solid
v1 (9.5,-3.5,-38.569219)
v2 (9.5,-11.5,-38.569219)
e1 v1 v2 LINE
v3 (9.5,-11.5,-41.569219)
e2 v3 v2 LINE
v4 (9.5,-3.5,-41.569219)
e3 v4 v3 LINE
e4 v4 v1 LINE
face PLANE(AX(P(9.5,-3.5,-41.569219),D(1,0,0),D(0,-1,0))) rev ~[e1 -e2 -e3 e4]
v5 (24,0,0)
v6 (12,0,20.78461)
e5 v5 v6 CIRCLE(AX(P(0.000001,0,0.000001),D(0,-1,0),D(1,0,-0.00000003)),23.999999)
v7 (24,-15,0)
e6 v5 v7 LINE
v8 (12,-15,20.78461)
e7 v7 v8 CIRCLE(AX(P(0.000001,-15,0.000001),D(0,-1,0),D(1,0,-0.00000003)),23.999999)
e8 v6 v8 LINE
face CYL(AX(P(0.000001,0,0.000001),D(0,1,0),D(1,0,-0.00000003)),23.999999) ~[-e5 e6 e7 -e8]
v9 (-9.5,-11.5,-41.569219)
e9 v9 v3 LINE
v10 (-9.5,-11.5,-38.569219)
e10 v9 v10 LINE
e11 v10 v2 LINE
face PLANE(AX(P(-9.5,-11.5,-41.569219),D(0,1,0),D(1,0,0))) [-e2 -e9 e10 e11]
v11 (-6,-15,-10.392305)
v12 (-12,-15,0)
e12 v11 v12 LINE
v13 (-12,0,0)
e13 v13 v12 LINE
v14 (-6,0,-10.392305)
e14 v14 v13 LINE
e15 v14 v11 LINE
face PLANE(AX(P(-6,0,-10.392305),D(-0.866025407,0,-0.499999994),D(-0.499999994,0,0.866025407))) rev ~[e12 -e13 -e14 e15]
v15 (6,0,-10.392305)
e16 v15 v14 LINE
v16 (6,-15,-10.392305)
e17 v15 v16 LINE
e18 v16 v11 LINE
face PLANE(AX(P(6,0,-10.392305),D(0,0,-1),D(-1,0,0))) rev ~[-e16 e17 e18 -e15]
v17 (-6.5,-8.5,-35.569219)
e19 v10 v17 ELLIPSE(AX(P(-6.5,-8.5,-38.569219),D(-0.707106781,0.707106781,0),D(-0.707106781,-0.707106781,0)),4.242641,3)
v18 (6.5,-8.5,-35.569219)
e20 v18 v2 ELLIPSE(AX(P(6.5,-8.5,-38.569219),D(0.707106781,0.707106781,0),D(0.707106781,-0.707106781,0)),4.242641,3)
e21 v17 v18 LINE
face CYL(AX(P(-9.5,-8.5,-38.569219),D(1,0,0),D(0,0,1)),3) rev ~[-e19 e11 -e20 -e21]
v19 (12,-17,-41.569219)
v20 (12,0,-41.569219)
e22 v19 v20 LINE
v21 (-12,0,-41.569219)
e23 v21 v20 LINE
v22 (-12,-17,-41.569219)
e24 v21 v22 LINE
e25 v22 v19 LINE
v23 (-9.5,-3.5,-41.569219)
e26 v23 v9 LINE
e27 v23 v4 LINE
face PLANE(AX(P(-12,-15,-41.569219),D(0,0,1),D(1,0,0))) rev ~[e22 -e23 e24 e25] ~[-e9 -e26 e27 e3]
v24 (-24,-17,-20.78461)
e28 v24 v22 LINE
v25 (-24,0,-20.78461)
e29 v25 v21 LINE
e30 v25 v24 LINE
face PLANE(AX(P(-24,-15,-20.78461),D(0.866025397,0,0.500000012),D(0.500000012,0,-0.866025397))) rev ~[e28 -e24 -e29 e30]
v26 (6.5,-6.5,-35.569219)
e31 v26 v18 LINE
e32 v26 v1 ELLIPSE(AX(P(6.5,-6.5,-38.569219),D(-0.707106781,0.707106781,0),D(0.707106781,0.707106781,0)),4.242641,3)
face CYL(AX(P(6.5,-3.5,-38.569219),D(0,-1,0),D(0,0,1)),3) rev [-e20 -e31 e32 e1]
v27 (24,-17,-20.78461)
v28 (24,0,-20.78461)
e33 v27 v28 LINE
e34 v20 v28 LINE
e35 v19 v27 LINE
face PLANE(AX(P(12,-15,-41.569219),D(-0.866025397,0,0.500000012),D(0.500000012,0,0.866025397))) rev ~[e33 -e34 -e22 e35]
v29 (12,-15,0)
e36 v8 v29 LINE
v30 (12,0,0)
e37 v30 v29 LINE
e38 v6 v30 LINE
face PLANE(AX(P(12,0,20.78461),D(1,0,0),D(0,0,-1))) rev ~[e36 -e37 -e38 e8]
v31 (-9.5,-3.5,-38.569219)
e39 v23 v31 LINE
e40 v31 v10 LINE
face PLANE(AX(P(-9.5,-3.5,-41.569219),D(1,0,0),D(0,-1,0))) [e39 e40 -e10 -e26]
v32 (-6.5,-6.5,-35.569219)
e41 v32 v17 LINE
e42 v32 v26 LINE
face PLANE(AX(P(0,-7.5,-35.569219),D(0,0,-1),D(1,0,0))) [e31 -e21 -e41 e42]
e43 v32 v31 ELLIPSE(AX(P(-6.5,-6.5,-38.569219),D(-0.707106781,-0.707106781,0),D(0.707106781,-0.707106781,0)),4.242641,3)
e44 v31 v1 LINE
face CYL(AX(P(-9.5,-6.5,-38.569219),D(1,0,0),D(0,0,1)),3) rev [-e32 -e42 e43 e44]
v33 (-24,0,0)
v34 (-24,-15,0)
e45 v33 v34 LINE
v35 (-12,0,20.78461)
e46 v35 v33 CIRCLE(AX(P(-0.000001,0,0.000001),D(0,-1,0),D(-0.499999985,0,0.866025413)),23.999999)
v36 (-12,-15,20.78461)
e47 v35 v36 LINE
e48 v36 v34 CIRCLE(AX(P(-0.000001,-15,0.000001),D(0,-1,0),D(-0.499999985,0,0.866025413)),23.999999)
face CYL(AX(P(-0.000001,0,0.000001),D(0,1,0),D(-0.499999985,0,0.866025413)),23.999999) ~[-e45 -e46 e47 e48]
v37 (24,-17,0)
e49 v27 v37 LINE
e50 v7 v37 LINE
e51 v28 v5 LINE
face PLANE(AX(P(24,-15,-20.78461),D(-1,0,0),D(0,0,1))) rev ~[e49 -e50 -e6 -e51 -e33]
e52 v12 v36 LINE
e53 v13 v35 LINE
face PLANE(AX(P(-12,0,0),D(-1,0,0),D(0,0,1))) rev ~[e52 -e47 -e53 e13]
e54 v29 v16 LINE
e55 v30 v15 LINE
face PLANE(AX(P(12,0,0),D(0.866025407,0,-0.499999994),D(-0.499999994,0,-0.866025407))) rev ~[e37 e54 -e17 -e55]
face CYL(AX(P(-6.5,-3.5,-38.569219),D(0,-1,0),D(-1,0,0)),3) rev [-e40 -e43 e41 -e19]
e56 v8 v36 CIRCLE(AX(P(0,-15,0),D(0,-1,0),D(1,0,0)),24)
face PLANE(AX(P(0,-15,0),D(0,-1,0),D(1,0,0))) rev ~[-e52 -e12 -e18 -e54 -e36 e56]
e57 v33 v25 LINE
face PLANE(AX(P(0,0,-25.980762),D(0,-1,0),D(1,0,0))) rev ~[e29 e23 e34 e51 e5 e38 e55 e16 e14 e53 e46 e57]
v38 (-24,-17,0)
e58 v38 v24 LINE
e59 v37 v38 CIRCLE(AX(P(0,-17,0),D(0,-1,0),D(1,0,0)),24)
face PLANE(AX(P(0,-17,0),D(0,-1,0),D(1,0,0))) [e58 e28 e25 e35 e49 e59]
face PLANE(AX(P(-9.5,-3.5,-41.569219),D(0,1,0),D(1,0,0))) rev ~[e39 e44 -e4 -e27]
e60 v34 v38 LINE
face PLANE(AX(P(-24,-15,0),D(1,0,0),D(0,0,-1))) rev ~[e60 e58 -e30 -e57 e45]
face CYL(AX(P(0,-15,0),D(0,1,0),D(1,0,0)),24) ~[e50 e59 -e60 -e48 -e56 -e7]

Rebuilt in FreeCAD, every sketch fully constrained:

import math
import FreeCAD as App
import Part
import Sketcher
from FreeCAD import Vector
Q = App.Units.Quantity


def edges_at(feature, points):
    """Names of the edges that pass closest to the given points."""
    edges = feature.Shape.Edges
    near = lambda p: min(range(len(edges)), key=lambda i: edges[i].distToShape(Part.Vertex(*p))[0])
    return sorted({f"Edge{near(p) + 1}" for p in points})

doc = App.newDocument("Part")
body = doc.addObject("PartDesign::Body", "Body")

# Sketch on XZ plane
sketch1 = doc.addObject("Sketcher::SketchObject", "Sketch")
body.addObject(sketch1)
sketch1.AttachmentSupport = (doc.XZ_Plane, [""])
sketch1.MapMode = "FlatFace"
sketch1.addGeometry([
    Part.ArcOfCircle(Part.Circle(Vector(0.000001, 0.000001, 0), Vector(0, 0, 1), 23.999999), math.radians(-0.000002), math.radians(60.000001)),  # 0
    Part.LineSegment(Vector(12, 20.78461, 0), Vector(12, 0, 0)),  # 1
    Part.LineSegment(Vector(12, 0, 0), Vector(6, -10.392305, 0)),  # 2
    Part.LineSegment(Vector(6, -10.392305, 0), Vector(-6, -10.392305, 0)),  # 3
    Part.LineSegment(Vector(-6, -10.392305, 0), Vector(-12, 0, 0)),  # 4
    Part.LineSegment(Vector(-12, 0, 0), Vector(-12, 20.78461, 0)),  # 5
    Part.ArcOfCircle(Part.Circle(Vector(-0.000001, 0.000001, 0), Vector(0, 0, 1), 23.999999), math.radians(119.999999), math.radians(180.000002)),  # 6
    Part.LineSegment(Vector(-24, 0, 0), Vector(-24, -20.78461, 0)),  # 7
    Part.LineSegment(Vector(-24, -20.78461, 0), Vector(-12, -41.569219, 0)),  # 8
    Part.LineSegment(Vector(-12, -41.569219, 0), Vector(12, -41.569219, 0)),  # 9
    Part.LineSegment(Vector(12, -41.569219, 0), Vector(24, -20.78461, 0)),  # 10
    Part.LineSegment(Vector(24, -20.78461, 0), Vector(24, 0, 0)),  # 11
], False)
sketch1.addConstraint([
    Sketcher.Constraint("Coincident", 0, 2, 1, 1),
    Sketcher.Constraint("Coincident", 1, 2, 2, 1),
    Sketcher.Constraint("Coincident", 2, 2, 3, 1),
    Sketcher.Constraint("Coincident", 3, 2, 4, 1),
    Sketcher.Constraint("Coincident", 4, 2, 5, 1),
    Sketcher.Constraint("Coincident", 5, 2, 6, 1),
    Sketcher.Constraint("Tangent", 6, 2, 7, 1),
    Sketcher.Constraint("Coincident", 7, 2, 8, 1),
    Sketcher.Constraint("Coincident", 8, 2, 9, 1),
    Sketcher.Constraint("Coincident", 9, 2, 10, 1),
    Sketcher.Constraint("Coincident", 10, 2, 11, 1),
    Sketcher.Constraint("Tangent", 11, 2, 0, 1),
    Sketcher.Constraint("Vertical", 1),
    Sketcher.Constraint("Horizontal", 3),
    Sketcher.Constraint("Vertical", 5),
    Sketcher.Constraint("Vertical", 7),
    Sketcher.Constraint("Horizontal", 9),
    Sketcher.Constraint("Vertical", 11),
    Sketcher.Constraint("Coincident", 0, 3, -1, 1),
    Sketcher.Constraint("Coincident", 6, 3, -1, 1),
    Sketcher.Constraint("Equal", 0, 6),
    Sketcher.Constraint("Symmetric", 1, 2, 4, 2, -1, 1),
    Sketcher.Constraint("PointOnObject", 1, 2, -1),
    Sketcher.Constraint("Parallel", 4, 8),
    Sketcher.Constraint("Parallel", 2, 10),
    Sketcher.Constraint("Horizontal", 7, 2, 10, 2),
    Sketcher.Constraint("Vertical", 5, 2, 8, 2),
    Sketcher.Constraint("Vertical", 1, 2, 9, 2),
    Sketcher.Constraint("Equal", 5, 7),
    Sketcher.Constraint("Radius", 0, 23.999999),
    Sketcher.Constraint("DistanceX", 3, 2, 3, 1, 12.0),
    Sketcher.Constraint("DistanceX", 9, 1, 9, 2, 24.0),
    Sketcher.Constraint("Angle", 2, Q("-120 deg")),
])
pad1 = doc.addObject("PartDesign::Pad", "Pad")
body.addObject(pad1)
pad1.Profile = sketch1
pad1.Length = 15

# Sketch on XY plane
sketch2 = doc.addObject("Sketcher::SketchObject", "Sketch001")
body.addObject(sketch2)
sketch2.AttachmentSupport = (doc.XY_Plane, [""])
sketch2.MapMode = "FlatFace"
sketch2.AttachmentOffset = App.Placement(Vector(0, 0, -41.569219), App.Rotation())
sketch2.addGeometry([
    Part.LineSegment(Vector(-9.5, -11.5, 0), Vector(-9.5, -3.5, 0)),
    Part.LineSegment(Vector(-9.5, -3.5, 0), Vector(9.5, -3.5, 0)),
    Part.LineSegment(Vector(9.5, -3.5, 0), Vector(9.5, -11.5, 0)),
    Part.LineSegment(Vector(9.5, -11.5, 0), Vector(-9.5, -11.5, 0)),
], False)
sketch2.addConstraint([
    Sketcher.Constraint("Coincident", 0, 2, 1, 1),
    Sketcher.Constraint("Coincident", 1, 2, 2, 1),
    Sketcher.Constraint("Coincident", 2, 2, 3, 1),
    Sketcher.Constraint("Coincident", 3, 2, 0, 1),
    Sketcher.Constraint("Vertical", 0),
    Sketcher.Constraint("Horizontal", 1),
    Sketcher.Constraint("Vertical", 2),
    Sketcher.Constraint("Horizontal", 3),
    Sketcher.Constraint("DistanceX", 1, 1, 1, 2, 19.0),
    Sketcher.Constraint("DistanceY", 0, 1, 0, 2, 8.0),
    Sketcher.Constraint("DistanceX", 0, 2, -1, 1, 9.5),
    Sketcher.Constraint("DistanceY", 0, 2, -1, 1, 3.5),
])
pocket1 = doc.addObject("PartDesign::Pocket", "Pocket")
body.addObject(pocket1)
pocket1.Profile = sketch2
pocket1.Length = 6
pocket1.Reversed = True

# Sketch on XZ plane
sketch3 = doc.addObject("Sketcher::SketchObject", "Sketch002")
body.addObject(sketch3)
sketch3.AttachmentSupport = (doc.XZ_Plane, [""])
sketch3.MapMode = "FlatFace"
sketch3.AttachmentOffset = App.Placement(Vector(0, 0, 15), App.Rotation())
sketch3.addGeometry([
    Part.ArcOfCircle(Part.Circle(Vector(0, 0, 0), Vector(0, 0, 1), 24), math.radians(0), math.radians(180)),  # 0
    Part.LineSegment(Vector(-24, 0, 0), Vector(-24, -20.78461, 0)),  # 1
    Part.LineSegment(Vector(-24, -20.78461, 0), Vector(-12, -41.569219, 0)),  # 2
    Part.LineSegment(Vector(-12, -41.569219, 0), Vector(12, -41.569219, 0)),  # 3
    Part.LineSegment(Vector(12, -41.569219, 0), Vector(24, -20.78461, 0)),  # 4
    Part.LineSegment(Vector(24, -20.78461, 0), Vector(24, 0, 0)),  # 5
], False)
sketch3.addConstraint([
    Sketcher.Constraint("Tangent", 0, 2, 1, 1),
    Sketcher.Constraint("Coincident", 1, 2, 2, 1),
    Sketcher.Constraint("Coincident", 2, 2, 3, 1),
    Sketcher.Constraint("Coincident", 3, 2, 4, 1),
    Sketcher.Constraint("Coincident", 4, 2, 5, 1),
    Sketcher.Constraint("Tangent", 5, 2, 0, 1),
    Sketcher.Constraint("Vertical", 1),
    Sketcher.Constraint("Horizontal", 3),
    Sketcher.Constraint("Vertical", 5),
    Sketcher.Constraint("Coincident", 0, 3, -1, 1),
    Sketcher.Constraint("Horizontal", 1, 2, 4, 2),
    Sketcher.Constraint("Equal", 2, 4),
    Sketcher.Constraint("Radius", 0, 24.0),
    Sketcher.Constraint("DistanceX", 3, 1, 3, 2, 24.0),
    Sketcher.Constraint("Angle", 2, Q("-59.999999 deg")),
    Sketcher.Constraint("DistanceY", 1, 2, 1, 1, 20.78461),
])
pad2 = doc.addObject("PartDesign::Pad", "Pad001")
body.addObject(pad2)
pad2.Profile = sketch3
pad2.Length = 2
doc.recompute()

fillet = doc.addObject("PartDesign::Fillet", "Fillet")
body.addObject(fillet)
fillet.Base = (pad2, edges_at(pad2, [
    (0, -3.5, -35.569),
    (-9.5, -7.5, -35.569),
    (0, -11.5, -35.569),
    (9.5, -7.5, -35.569),
]))
fillet.Radius = 3

doc.recompute()
